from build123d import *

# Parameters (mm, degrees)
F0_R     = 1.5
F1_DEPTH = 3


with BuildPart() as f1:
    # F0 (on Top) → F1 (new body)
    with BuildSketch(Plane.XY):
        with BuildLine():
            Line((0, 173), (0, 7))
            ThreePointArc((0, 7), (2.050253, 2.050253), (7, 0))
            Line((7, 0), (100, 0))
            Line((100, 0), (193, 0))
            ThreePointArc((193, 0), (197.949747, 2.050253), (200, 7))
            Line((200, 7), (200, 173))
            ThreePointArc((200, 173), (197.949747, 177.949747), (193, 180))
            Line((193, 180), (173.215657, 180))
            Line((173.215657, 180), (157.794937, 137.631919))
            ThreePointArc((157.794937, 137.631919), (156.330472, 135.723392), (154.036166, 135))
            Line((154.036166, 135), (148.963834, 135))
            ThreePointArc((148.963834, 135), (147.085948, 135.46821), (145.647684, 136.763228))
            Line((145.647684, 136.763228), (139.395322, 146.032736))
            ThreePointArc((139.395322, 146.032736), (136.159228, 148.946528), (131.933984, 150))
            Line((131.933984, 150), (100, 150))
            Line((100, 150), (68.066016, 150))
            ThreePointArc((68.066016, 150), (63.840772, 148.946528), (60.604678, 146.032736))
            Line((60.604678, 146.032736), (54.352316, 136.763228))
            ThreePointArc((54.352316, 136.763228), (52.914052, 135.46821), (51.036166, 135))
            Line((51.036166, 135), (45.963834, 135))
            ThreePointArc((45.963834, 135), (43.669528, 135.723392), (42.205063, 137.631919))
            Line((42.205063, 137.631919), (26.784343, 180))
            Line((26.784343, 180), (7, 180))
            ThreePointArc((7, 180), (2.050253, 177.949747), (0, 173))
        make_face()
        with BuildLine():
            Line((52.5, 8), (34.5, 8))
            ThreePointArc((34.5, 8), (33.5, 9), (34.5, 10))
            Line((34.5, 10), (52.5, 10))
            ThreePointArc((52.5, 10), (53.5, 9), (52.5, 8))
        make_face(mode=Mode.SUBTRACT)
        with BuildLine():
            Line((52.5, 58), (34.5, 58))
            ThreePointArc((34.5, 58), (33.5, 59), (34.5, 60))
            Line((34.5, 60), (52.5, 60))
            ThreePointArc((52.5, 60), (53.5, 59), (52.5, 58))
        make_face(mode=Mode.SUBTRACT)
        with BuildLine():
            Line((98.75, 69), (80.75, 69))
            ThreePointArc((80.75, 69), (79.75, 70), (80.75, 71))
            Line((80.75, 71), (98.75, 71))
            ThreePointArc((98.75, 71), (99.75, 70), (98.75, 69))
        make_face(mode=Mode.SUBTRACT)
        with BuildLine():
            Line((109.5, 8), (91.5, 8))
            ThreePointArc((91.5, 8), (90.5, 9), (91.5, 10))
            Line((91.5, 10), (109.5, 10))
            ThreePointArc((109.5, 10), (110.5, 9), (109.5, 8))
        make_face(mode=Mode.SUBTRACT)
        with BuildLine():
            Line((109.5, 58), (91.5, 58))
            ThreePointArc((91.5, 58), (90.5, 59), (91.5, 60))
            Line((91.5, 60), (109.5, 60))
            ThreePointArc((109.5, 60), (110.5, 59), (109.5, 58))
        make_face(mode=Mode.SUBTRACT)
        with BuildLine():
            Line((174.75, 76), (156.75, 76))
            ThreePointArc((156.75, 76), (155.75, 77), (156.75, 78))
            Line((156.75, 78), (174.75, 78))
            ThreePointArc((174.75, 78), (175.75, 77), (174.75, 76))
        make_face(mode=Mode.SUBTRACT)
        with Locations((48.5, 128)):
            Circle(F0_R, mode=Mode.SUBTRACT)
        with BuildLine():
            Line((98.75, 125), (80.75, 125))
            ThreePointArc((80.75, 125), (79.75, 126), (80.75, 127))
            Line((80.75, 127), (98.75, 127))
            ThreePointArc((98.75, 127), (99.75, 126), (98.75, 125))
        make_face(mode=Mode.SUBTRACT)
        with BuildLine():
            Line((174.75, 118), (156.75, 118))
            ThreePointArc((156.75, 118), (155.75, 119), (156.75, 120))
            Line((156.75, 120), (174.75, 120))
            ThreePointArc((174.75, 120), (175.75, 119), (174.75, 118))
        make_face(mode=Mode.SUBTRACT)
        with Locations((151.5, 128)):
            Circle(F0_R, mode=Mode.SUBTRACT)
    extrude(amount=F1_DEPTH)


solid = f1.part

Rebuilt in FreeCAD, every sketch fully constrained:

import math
import FreeCAD as App
import Part
import Sketcher

V = App.Vector
Q = App.Units.Quantity

doc = App.newDocument("Part")
body = doc.addObject("PartDesign::Body", "Body")

# Sketch on XY plane
sketch1 = doc.addObject("Sketcher::SketchObject", "Sketch")
body.addObject(sketch1)
sketch1.AttachmentSupport = (doc.XY_Plane, [""])
sketch1.MapMode = "FlatFace"
sketch1.addGeometry(Part.LineSegment(V(0, 173, 0), V(0, 7, 0)), False)
sketch1.addGeometry(Part.ArcOfCircle(Part.Circle(V(7, 7, 0), V(0, 0, 1), 7), math.radians(-180), math.radians(-90)), False)
sketch1.addGeometry(Part.LineSegment(V(7, 0, 0), V(193, 0, 0)), False)
sketch1.addGeometry(Part.ArcOfCircle(Part.Circle(V(193, 7, 0), V(0, 0, 1), 7), math.radians(-90), math.radians(0)), False)
sketch1.addGeometry(Part.LineSegment(V(200, 7, 0), V(200, 173, 0)), False)
sketch1.addGeometry(Part.ArcOfCircle(Part.Circle(V(193, 173, 0), V(0, 0, 1), 7), math.radians(0), math.radians(90)), False)
sketch1.addGeometry(Part.LineSegment(V(193, 180, 0), V(173.2, 180, 0)), False)
sketch1.addGeometry(Part.LineSegment(V(173.2, 180, 0), V(157.8, 137.6, 0)), False)
sketch1.addGeometry(Part.ArcOfCircle(Part.Circle(V(154, 139, 0), V(0, 0, 1), 4), math.radians(-90), math.radians(-20)), False)
sketch1.addGeometry(Part.LineSegment(V(154, 135, 0), V(149, 135, 0)), False)
sketch1.addGeometry(Part.ArcOfCircle(Part.Circle(V(149, 139, 0), V(0, 0, 1), 4), math.radians(-146), math.radians(-90)), False)
sketch1.addGeometry(Part.LineSegment(V(145.6, 136.8, 0), V(139.4, 146, 0)), False)
sketch1.addGeometry(Part.ArcOfCircle(Part.Circle(V(131.9, 141, 0), V(0, 0, 1), 9), math.radians(34), math.radians(90)), False)
sketch1.addGeometry(Part.LineSegment(V(131.9, 150, 0), V(68.1, 150, 0)), False)
sketch1.addGeometry(Part.ArcOfCircle(Part.Circle(V(68.1, 141, 0), V(0, 0, 1), 9), math.radians(90), math.radians(146)), False)
sketch1.addGeometry(Part.LineSegment(V(60.6, 146, 0), V(54.4, 136.8, 0)), False)
sketch1.addGeometry(Part.ArcOfCircle(Part.Circle(V(51, 139, 0), V(0, 0, 1), 4), math.radians(-90), math.radians(-34)), False)
sketch1.addGeometry(Part.LineSegment(V(51, 135, 0), V(46, 135, 0)), False)
sketch1.addGeometry(Part.ArcOfCircle(Part.Circle(V(46, 139, 0), V(0, 0, 1), 4), math.radians(-160), math.radians(-90)), False)
sketch1.addGeometry(Part.LineSegment(V(42.2, 137.6, 0), V(26.8, 180, 0)), False)
sketch1.addGeometry(Part.LineSegment(V(26.8, 180, 0), V(7, 180, 0)), False)
sketch1.addGeometry(Part.ArcOfCircle(Part.Circle(V(7, 173, 0), V(0, 0, 1), 7), math.radians(90), math.radians(180)), False)
sketch1.addGeometry(Part.ArcOfCircle(Part.Circle(V(52.5, 9, 0), V(0, 0, 1), 1), math.radians(-90), math.radians(90)), False)
sketch1.addGeometry(Part.LineSegment(V(52.5, 8, 0), V(34.5, 8, 0)), False)
sketch1.addGeometry(Part.ArcOfCircle(Part.Circle(V(34.5, 9, 0), V(0, 0, 1), 1), math.radians(90), math.radians(270)), False)
sketch1.addGeometry(Part.LineSegment(V(34.5, 10, 0), V(52.5, 10, 0)), False)
sketch1.addGeometry(Part.ArcOfCircle(Part.Circle(V(109.5, 9, 0), V(0, 0, 1), 1), math.radians(-90), math.radians(90)), False)
sketch1.addGeometry(Part.LineSegment(V(109.5, 8, 0), V(91.5, 8, 0)), False)
sketch1.addGeometry(Part.ArcOfCircle(Part.Circle(V(91.5, 9, 0), V(0, 0, 1), 1), math.radians(90), math.radians(270)), False)
sketch1.addGeometry(Part.LineSegment(V(91.5, 10, 0), V(109.5, 10, 0)), False)
sketch1.addGeometry(Part.ArcOfCircle(Part.Circle(V(52.5, 59, 0), V(0, 0, 1), 1), math.radians(-90), math.radians(90)), False)
sketch1.addGeometry(Part.LineSegment(V(52.5, 58, 0), V(34.5, 58, 0)), False)
sketch1.addGeometry(Part.ArcOfCircle(Part.Circle(V(34.5, 59, 0), V(0, 0, 1), 1), math.radians(90), math.radians(270)), False)
sketch1.addGeometry(Part.LineSegment(V(34.5, 60, 0), V(52.5, 60, 0)), False)
sketch1.addGeometry(Part.ArcOfCircle(Part.Circle(V(109.5, 59, 0), V(0, 0, 1), 1), math.radians(-90), math.radians(90)), False)
sketch1.addGeometry(Part.LineSegment(V(109.5, 58, 0), V(91.5, 58, 0)), False)
sketch1.addGeometry(Part.ArcOfCircle(Part.Circle(V(91.5, 59, 0), V(0, 0, 1), 1), math.radians(90), math.radians(270)), False)
sketch1.addGeometry(Part.LineSegment(V(91.5, 60, 0), V(109.5, 60, 0)), False)
sketch1.addGeometry(Part.ArcOfCircle(Part.Circle(V(98.8, 70, 0), V(0, 0, 1), 1), math.radians(-90), math.radians(90)), False)
sketch1.addGeometry(Part.LineSegment(V(98.8, 69, 0), V(80.8, 69, 0)), False)
sketch1.addGeometry(Part.ArcOfCircle(Part.Circle(V(80.8, 70, 0), V(0, 0, 1), 1), math.radians(90), math.radians(270)), False)
sketch1.addGeometry(Part.LineSegment(V(80.8, 71, 0), V(98.8, 71, 0)), False)
sketch1.addGeometry(Part.Circle(V(48.5, 128, 0), V(0, 0, 1), 1.5), False)
sketch1.addGeometry(Part.ArcOfCircle(Part.Circle(V(98.8, 126, 0), V(0, 0, 1), 1), math.radians(-90), math.radians(90)), False)
sketch1.addGeometry(Part.LineSegment(V(98.8, 125, 0), V(80.8, 125, 0)), False)
sketch1.addGeometry(Part.ArcOfCircle(Part.Circle(V(80.8, 126, 0), V(0, 0, 1), 1), math.radians(90), math.radians(270)), False)
sketch1.addGeometry(Part.LineSegment(V(80.8, 127, 0), V(98.8, 127, 0)), False)
sketch1.addGeometry(Part.ArcOfCircle(Part.Circle(V(174.8, 77, 0), V(0, 0, 1), 1), math.radians(-90), math.radians(90)), False)
sketch1.addGeometry(Part.LineSegment(V(174.8, 76, 0), V(156.8, 76, 0)), False)
sketch1.addGeometry(Part.ArcOfCircle(Part.Circle(V(156.8, 77, 0), V(0, 0, 1), 1), math.radians(90), math.radians(270)), False)
sketch1.addGeometry(Part.LineSegment(V(156.8, 78, 0), V(174.8, 78, 0)), False)
sketch1.addGeometry(Part.Circle(V(151.5, 128, 0), V(0, 0, 1), 1.5), False)
sketch1.addGeometry(Part.ArcOfCircle(Part.Circle(V(174.8, 119, 0), V(0, 0, 1), 1), math.radians(-90), math.radians(90)), False)
sketch1.addGeometry(Part.LineSegment(V(174.8, 118, 0), V(156.8, 118, 0)), False)
sketch1.addGeometry(Part.ArcOfCircle(Part.Circle(V(156.8, 119, 0), V(0, 0, 1), 1), math.radians(90), math.radians(270)), False)
sketch1.addGeometry(Part.LineSegment(V(156.8, 120, 0), V(174.8, 120, 0)), False)
sketch1.addConstraint(Sketcher.Constraint("Tangent", 0, 2, 1, 1))
sketch1.addConstraint(Sketcher.Constraint("Tangent", 1, 2, 2, 1))
sketch1.addConstraint(Sketcher.Constraint("Tangent", 2, 2, 3, 1))
sketch1.addConstraint(Sketcher.Constraint("Tangent", 3, 2, 4, 1))
sketch1.addConstraint(Sketcher.Constraint("Tangent", 4, 2, 5, 1))
sketch1.addConstraint(Sketcher.Constraint("Tangent", 5, 2, 6, 1))
sketch1.addConstraint(Sketcher.Constraint("Coincident", 6, 2, 7, 1))
sketch1.addConstraint(Sketcher.Constraint("Tangent", 7, 2, 8, 2))
sketch1.addConstraint(Sketcher.Constraint("Tangent", 8, 1, 9, 1))
sketch1.addConstraint(Sketcher.Constraint("Tangent", 9, 2, 10, 2))
sketch1.addConstraint(Sketcher.Constraint("Tangent", 10, 1, 11, 1))
sketch1.addConstraint(Sketcher.Constraint("Tangent", 11, 2, 12, 1))
sketch1.addConstraint(Sketcher.Constraint("Tangent", 12, 2, 13, 1))
sketch1.addConstraint(Sketcher.Constraint("Tangent", 13, 2, 14, 1))
sketch1.addConstraint(Sketcher.Constraint("Tangent", 14, 2, 15, 1))
sketch1.addConstraint(Sketcher.Constraint("Tangent", 15, 2, 16, 2))
sketch1.addConstraint(Sketcher.Constraint("Tangent", 16, 1, 17, 1))
sketch1.addConstraint(Sketcher.Constraint("Tangent", 17, 2, 18, 2))
sketch1.addConstraint(Sketcher.Constraint("Tangent", 18, 1, 19, 1))
sketch1.addConstraint(Sketcher.Constraint("Coincident", 19, 2, 20, 1))
sketch1.addConstraint(Sketcher.Constraint("Tangent", 20, 2, 21, 1))
sketch1.addConstraint(Sketcher.Constraint("Tangent", 21, 2, 0, 1))
sketch1.addConstraint(Sketcher.Constraint("Tangent", 22, 1, 23, 1))
sketch1.addConstraint(Sketcher.Constraint("Tangent", 23, 2, 24, 2))
sketch1.addConstraint(Sketcher.Constraint("Tangent", 24, 1, 25, 1))
sketch1.addConstraint(Sketcher.Constraint("Tangent", 25, 2, 22, 2))
sketch1.addConstraint(Sketcher.Constraint("Tangent", 26, 1, 27, 1))
sketch1.addConstraint(Sketcher.Constraint("Tangent", 27, 2, 28, 2))
sketch1.addConstraint(Sketcher.Constraint("Tangent", 28, 1, 29, 1))
sketch1.addConstraint(Sketcher.Constraint("Tangent", 29, 2, 26, 2))
sketch1.addConstraint(Sketcher.Constraint("Tangent", 30, 1, 31, 1))
sketch1.addConstraint(Sketcher.Constraint("Tangent", 31, 2, 32, 2))
sketch1.addConstraint(Sketcher.Constraint("Tangent", 32, 1, 33, 1))
sketch1.addConstraint(Sketcher.Constraint("Tangent", 33, 2, 30, 2))
sketch1.addConstraint(Sketcher.Constraint("Tangent", 34, 1, 35, 1))
sketch1.addConstraint(Sketcher.Constraint("Tangent", 35, 2, 36, 2))
sketch1.addConstraint(Sketcher.Constraint("Tangent", 36, 1, 37, 1))
sketch1.addConstraint(Sketcher.Constraint("Tangent", 37, 2, 34, 2))
sketch1.addConstraint(Sketcher.Constraint("Tangent", 38, 1, 39, 1))
sketch1.addConstraint(Sketcher.Constraint("Tangent", 39, 2, 40, 2))
sketch1.addConstraint(Sketcher.Constraint("Tangent", 40, 1, 41, 1))
sketch1.addConstraint(Sketcher.Constraint("Tangent", 41, 2, 38, 2))
sketch1.addConstraint(Sketcher.Constraint("Tangent", 43, 1, 44, 1))
sketch1.addConstraint(Sketcher.Constraint("Tangent", 44, 2, 45, 2))
sketch1.addConstraint(Sketcher.Constraint("Tangent", 45, 1, 46, 1))
sketch1.addConstraint(Sketcher.Constraint("Tangent", 46, 2, 43, 2))
sketch1.addConstraint(Sketcher.Constraint("Tangent", 47, 1, 48, 1))
sketch1.addConstraint(Sketcher.Constraint("Tangent", 48, 2, 49, 2))
sketch1.addConstraint(Sketcher.Constraint("Tangent", 49, 1, 50, 1))
sketch1.addConstraint(Sketcher.Constraint("Tangent", 50, 2, 47, 2))
sketch1.addConstraint(Sketcher.Constraint("Tangent", 52, 1, 53, 1))
sketch1.addConstraint(Sketcher.Constraint("Tangent", 53, 2, 54, 2))
sketch1.addConstraint(Sketcher.Constraint("Tangent", 54, 1, 55, 1))
sketch1.addConstraint(Sketcher.Constraint("Tangent", 55, 2, 52, 2))
sketch1.addConstraint(Sketcher.Constraint("Vertical", 0))
sketch1.addConstraint(Sketcher.Constraint("Horizontal", 2))
sketch1.addConstraint(Sketcher.Constraint("Vertical", 4))
sketch1.addConstraint(Sketcher.Constraint("Horizontal", 6))
sketch1.addConstraint(Sketcher.Constraint("Horizontal", 9))
sketch1.addConstraint(Sketcher.Constraint("Horizontal", 13))
sketch1.addConstraint(Sketcher.Constraint("Horizontal", 17))
sketch1.addConstraint(Sketcher.Constraint("Horizontal", 20))
sketch1.addConstraint(Sketcher.Constraint("Horizontal", 23))
sketch1.addConstraint(Sketcher.Constraint("Horizontal", 25))
sketch1.addConstraint(Sketcher.Constraint("Horizontal", 27))
sketch1.addConstraint(Sketcher.Constraint("Horizontal", 29))
sketch1.addConstraint(Sketcher.Constraint("Horizontal", 31))
sketch1.addConstraint(Sketcher.Constraint("Horizontal", 33))
sketch1.addConstraint(Sketcher.Constraint("Horizontal", 35))
sketch1.addConstraint(Sketcher.Constraint("Horizontal", 37))
sketch1.addConstraint(Sketcher.Constraint("Horizontal", 39))
sketch1.addConstraint(Sketcher.Constraint("Horizontal", 41))
sketch1.addConstraint(Sketcher.Constraint("Horizontal", 44))
sketch1.addConstraint(Sketcher.Constraint("Horizontal", 46))
sketch1.addConstraint(Sketcher.Constraint("Horizontal", 48))
sketch1.addConstraint(Sketcher.Constraint("Horizontal", 50))
sketch1.addConstraint(Sketcher.Constraint("Horizontal", 53))
sketch1.addConstraint(Sketcher.Constraint("Horizontal", 55))
sketch1.addConstraint(Sketcher.Constraint("Equal", 1, 3))
sketch1.addConstraint(Sketcher.Constraint("Equal", 3, 5))
sketch1.addConstraint(Sketcher.Constraint("Equal", 8, 10))
sketch1.addConstraint(Sketcher.Constraint("Equal", 12, 14))
sketch1.addConstraint(Sketcher.Constraint("Equal", 10, 16))
sketch1.addConstraint(Sketcher.Constraint("Equal", 16, 18))
sketch1.addConstraint(Sketcher.Constraint("Equal", 5, 21))
sketch1.addConstraint(Sketcher.Constraint("Equal", 24, 26))
sketch1.addConstraint(Sketcher.Constraint("Equal", 28, 30))
sketch1.addConstraint(Sketcher.Constraint("Equal", 32, 34))
sketch1.addConstraint(Sketcher.Constraint("Equal", 36, 38))
sketch1.addConstraint(Sketcher.Constraint("Equal", 40, 43))
sketch1.addConstraint(Sketcher.Constraint("Equal", 45, 47))
sketch1.addConstraint(Sketcher.Constraint("Equal", 42, 51))
sketch1.addConstraint(Sketcher.Constraint("Equal", 49, 52))
sketch1.addConstraint(Sketcher.Constraint("PointOnObject", 0, 2, -2))
sketch1.addConstraint(Sketcher.Constraint("PointOnObject", 1, 2, -1))
sketch1.addConstraint(Sketcher.Constraint("Horizontal", 10, 3, 16, 3))
sketch1.addConstraint(Sketcher.Constraint("Horizontal", 5, 3, 21, 3))
sketch1.addConstraint(Sketcher.Constraint("Horizontal", 24, 3, 26, 3))
sketch1.addConstraint(Sketcher.Constraint("Horizontal", 32, 3, 34, 3))
sketch1.addConstraint(Sketcher.Constraint("Horizontal", 42, 3, 51, 3))
sketch1.addConstraint(Sketcher.Constraint("Horizontal", 11, 2, 14, 2))
sketch1.addConstraint(Sketcher.Constraint("Horizontal", 7, 2, 18, 1))
sketch1.addConstraint(Sketcher.Constraint("Vertical", 22, 3, 30, 3))
sketch1.addConstraint(Sketcher.Constraint("Vertical", 24, 3, 32, 3))
sketch1.addConstraint(Sketcher.Constraint("Vertical", 26, 3, 34, 3))
sketch1.addConstraint(Sketcher.Constraint("Vertical", 28, 3, 36, 3))
sketch1.addConstraint(Sketcher.Constraint("Vertical", 38, 3, 43, 3))
sketch1.addConstraint(Sketcher.Constraint("Vertical", 40, 3, 45, 3))
sketch1.addConstraint(Sketcher.Constraint("Vertical", 47, 3, 52, 3))
sketch1.addConstraint(Sketcher.Constraint("Vertical", 49, 3, 54, 3))
sketch1.addConstraint(Sketcher.Constraint("Equal", 9, 17))
sketch1.addConstraint(Sketcher.Constraint("Equal", 6, 20))
sketch1.addConstraint(Sketcher.Constraint("Equal", 25, 27))
sketch1.addConstraint(Sketcher.Constraint("Equal", 37, 39))
sketch1.addConstraint(Sketcher.Constraint("Equal", 46, 48))
sketch1.addConstraint(Sketcher.Constraint("Diameter", 42, Q("3 mm")))
sketch1.addConstraint(Sketcher.Constraint("Radius", 1, Q("7.000002 mm")))
sketch1.addConstraint(Sketcher.Constraint("Radius", 8, Q("4.000002 mm")))
sketch1.addConstraint(Sketcher.Constraint("Radius", 12, Q("9.000002 mm")))
sketch1.addConstraint(Sketcher.Constraint("Radius", 22, Q("1 mm")))
sketch1.addConstraint(Sketcher.Constraint("DistanceX", 2, 1, 2, 2, Q("186 mm")))
sketch1.addConstraint(Sketcher.Constraint("DistanceX", 23, 2, 23, 1, Q("18 mm")))
sketch1.addConstraint(Sketcher.Constraint("DistanceY", 0, 2, 0, 1, Q("166 mm")))
sketch1.addConstraint(Sketcher.Constraint("Angle", 7, Q("-110 deg")))
sketch1.addConstraint(Sketcher.Constraint("Angle", 11, Q("124 deg")))
sketch1.addConstraint(Sketcher.Constraint("DistanceY", -1, 1, 8, 3, Q("139.000002 mm")))
sketch1.addConstraint(Sketcher.Constraint("DistanceY", -1, 1, 12, 3, Q("140.999998 mm")))
sketch1.addConstraint(Sketcher.Constraint("DistanceY", -1, 1, 22, 3, Q("9 mm")))
sketch1.addConstraint(Sketcher.Constraint("DistanceY", -1, 1, 30, 3, Q("59 mm")))
sketch1.addConstraint(Sketcher.Constraint("DistanceY", -1, 1, 38, 3, Q("70 mm")))
sketch1.addConstraint(Sketcher.Constraint("DistanceY", -1, 1, 42, 3, Q("128 mm")))
sketch1.addConstraint(Sketcher.Constraint("DistanceY", -1, 1, 43, 3, Q("126 mm")))
sketch1.addConstraint(Sketcher.Constraint("DistanceY", -1, 1, 47, 3, Q("77 mm")))
sketch1.addConstraint(Sketcher.Constraint("DistanceY", -1, 1, 52, 3, Q("119 mm")))
sketch1.addConstraint(Sketcher.Constraint("DistanceX", -1, 1, 22, 3, Q("52.5 mm")))
sketch1.addConstraint(Sketcher.Constraint("DistanceX", -1, 1, 26, 3, Q("109.5 mm")))
sketch1.addConstraint(Sketcher.Constraint("DistanceX", -1, 1, 42, 3, Q("48.5 mm")))
sketch1.addConstraint(Sketcher.Constraint("DistanceX", -1, 1, 51, 3, Q("151.5 mm")))
sketch1.addConstraint(Sketcher.Constraint("DistanceX", -1, 1, 38, 3, Q("98.75 mm")))
sketch1.addConstraint(Sketcher.Constraint("DistanceX", -1, 1, 47, 3, Q("174.75 mm")))
sketch1.addConstraint(Sketcher.Constraint("DistanceX", 13, 2, 13, 1, Q("63.867968 mm")))
sketch1.addConstraint(Sketcher.Constraint("DistanceX", 6, 2, 6, 1, Q("19.784343 mm")))
pad1 = doc.addObject("PartDesign::Pad", "Pad")
body.addObject(pad1)
pad1.Profile = sketch1
pad1.Length = 3

doc.recompute()
